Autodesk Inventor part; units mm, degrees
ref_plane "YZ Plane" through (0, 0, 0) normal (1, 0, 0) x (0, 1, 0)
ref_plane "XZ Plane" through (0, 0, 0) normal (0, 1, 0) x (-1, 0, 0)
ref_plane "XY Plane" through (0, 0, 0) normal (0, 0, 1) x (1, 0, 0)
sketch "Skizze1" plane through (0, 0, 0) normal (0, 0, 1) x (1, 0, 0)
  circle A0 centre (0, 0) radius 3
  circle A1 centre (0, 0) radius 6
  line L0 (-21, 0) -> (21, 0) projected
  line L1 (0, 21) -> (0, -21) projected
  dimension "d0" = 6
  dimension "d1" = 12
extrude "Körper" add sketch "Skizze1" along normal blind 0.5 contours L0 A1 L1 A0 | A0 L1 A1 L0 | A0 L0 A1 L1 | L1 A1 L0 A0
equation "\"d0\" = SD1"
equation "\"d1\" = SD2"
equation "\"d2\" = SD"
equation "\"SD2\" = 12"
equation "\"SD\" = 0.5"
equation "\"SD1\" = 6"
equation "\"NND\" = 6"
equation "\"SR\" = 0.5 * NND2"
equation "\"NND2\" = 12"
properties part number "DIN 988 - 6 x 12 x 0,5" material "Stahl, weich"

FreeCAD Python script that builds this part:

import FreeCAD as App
import Part
import Sketcher
from FreeCAD import Vector

doc = App.newDocument("Part")
body = doc.addObject("PartDesign::Body", "Body")

# Sketch on XY plane
sketch1 = doc.addObject("Sketcher::SketchObject", "Sketch")
body.addObject(sketch1)
sketch1.AttachmentSupport = (doc.XY_Plane, [""])
sketch1.MapMode = "FlatFace"
sketch1.addGeometry([
    Part.Circle(Vector(0, 0, 0), Vector(0, 0, 1), 6),
    Part.Circle(Vector(0, 0, 0), Vector(0, 0, 1), 3),
], False)
sketch1.addConstraint([
    Sketcher.Constraint("Coincident", 0, 3, -1, 1),
    Sketcher.Constraint("Coincident", 1, 3, -1, 1),
    Sketcher.Constraint("Diameter", 0, 12.0),
    Sketcher.Constraint("Diameter", 1, 6.0),
])
pad1 = doc.addObject("PartDesign::Pad", "Pad")
body.addObject(pad1)
pad1.Profile = sketch1
pad1.Length = 0.5

doc.recompute()
